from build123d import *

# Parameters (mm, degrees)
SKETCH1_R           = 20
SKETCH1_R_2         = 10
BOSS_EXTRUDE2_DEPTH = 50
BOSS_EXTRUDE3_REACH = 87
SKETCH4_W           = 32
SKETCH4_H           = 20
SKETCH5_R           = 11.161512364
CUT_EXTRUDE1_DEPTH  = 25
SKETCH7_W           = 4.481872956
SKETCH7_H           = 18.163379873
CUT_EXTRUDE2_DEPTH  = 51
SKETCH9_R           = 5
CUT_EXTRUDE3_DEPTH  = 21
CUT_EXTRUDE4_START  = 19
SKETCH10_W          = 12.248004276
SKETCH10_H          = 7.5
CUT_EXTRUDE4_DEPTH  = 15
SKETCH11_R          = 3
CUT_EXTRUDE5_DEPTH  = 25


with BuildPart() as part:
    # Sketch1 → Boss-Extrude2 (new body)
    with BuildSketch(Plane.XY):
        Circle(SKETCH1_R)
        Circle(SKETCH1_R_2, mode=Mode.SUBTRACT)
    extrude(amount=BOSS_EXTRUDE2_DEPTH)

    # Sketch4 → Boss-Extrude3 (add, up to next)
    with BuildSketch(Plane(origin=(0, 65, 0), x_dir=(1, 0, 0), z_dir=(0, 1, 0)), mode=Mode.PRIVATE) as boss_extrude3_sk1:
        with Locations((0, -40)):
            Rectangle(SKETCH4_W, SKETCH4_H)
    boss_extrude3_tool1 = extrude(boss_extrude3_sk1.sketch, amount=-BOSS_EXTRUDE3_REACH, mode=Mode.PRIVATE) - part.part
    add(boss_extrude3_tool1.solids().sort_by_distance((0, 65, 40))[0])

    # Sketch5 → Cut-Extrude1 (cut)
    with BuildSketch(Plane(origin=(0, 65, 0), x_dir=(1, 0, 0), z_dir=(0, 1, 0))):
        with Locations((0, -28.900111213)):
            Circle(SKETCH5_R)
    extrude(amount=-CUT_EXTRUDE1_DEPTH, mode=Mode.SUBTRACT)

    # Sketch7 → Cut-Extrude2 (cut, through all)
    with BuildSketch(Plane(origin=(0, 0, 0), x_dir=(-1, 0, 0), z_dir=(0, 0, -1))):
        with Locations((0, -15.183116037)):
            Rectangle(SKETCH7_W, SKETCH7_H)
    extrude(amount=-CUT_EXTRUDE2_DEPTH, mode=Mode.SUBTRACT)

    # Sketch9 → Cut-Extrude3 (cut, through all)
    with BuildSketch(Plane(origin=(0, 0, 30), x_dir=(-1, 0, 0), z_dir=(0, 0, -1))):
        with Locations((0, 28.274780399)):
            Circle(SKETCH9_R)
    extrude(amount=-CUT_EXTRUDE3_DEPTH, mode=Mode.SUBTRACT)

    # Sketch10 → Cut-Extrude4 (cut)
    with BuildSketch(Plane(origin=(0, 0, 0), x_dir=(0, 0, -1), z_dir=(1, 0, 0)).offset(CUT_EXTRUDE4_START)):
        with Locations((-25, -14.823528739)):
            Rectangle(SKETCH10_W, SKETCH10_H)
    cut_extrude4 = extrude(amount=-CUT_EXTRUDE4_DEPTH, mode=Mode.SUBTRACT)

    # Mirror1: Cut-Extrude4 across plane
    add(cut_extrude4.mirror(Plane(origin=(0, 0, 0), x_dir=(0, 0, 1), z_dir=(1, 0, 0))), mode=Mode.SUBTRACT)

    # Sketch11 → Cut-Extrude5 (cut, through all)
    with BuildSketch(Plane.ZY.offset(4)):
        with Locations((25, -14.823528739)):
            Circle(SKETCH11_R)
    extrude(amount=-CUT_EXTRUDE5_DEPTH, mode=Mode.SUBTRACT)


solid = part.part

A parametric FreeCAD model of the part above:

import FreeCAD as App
import Part
import Sketcher

V = App.Vector
Q = App.Units.Quantity

doc = App.newDocument("Part")
body = doc.addObject("PartDesign::Body", "Body")

sketch1 = body.newObject("Sketcher::SketchObject", "Sketch")
sketch1.AttachmentSupport = (doc.getObject("XY_Plane"), [""])
sketch1.MapMode = "FlatFace"
sketch1.addGeometry([
    Part.Circle(V(0, 0, 0), V(0, 0, 1), 20),
    Part.Circle(V(0, 0, 0), V(0, 0, 1), 10),
], False)
sketch1.addConstraint([
    Sketcher.Constraint("Coincident", 0, 3, -1, 1),
    Sketcher.Constraint("Coincident", 1, 3, -1, 1),
    Sketcher.Constraint("Diameter", 0, Q("40 mm")),
    Sketcher.Constraint("Diameter", 1, Q("20 mm")),
])
pad1 = body.newObject("PartDesign::Pad", "Pad")
pad1.Profile = sketch1
pad1.Length = 50

sketch2 = body.newObject("Sketcher::SketchObject", "Sketch001")
sketch2.AttachmentSupport = (doc.getObject("XZ_Plane"), [""])
sketch2.MapMode = "FlatFace"
sketch2.AttachmentOffset = App.Placement(V(0, 0, -65), App.Rotation())
sketch2.addGeometry([
    Part.LineSegment(V(-16, 30, 0), V(-16, 50, 0)),
    Part.LineSegment(V(-16, 50, 0), V(16, 50, 0)),
    Part.LineSegment(V(16, 50, 0), V(16, 30, 0)),
    Part.LineSegment(V(16, 30, 0), V(-16, 30, 0)),
], False)
sketch2.addConstraint([
    Sketcher.Constraint("Coincident", 0, 2, 1, 1),
    Sketcher.Constraint("Coincident", 1, 2, 2, 1),
    Sketcher.Constraint("Coincident", 2, 2, 3, 1),
    Sketcher.Constraint("Coincident", 3, 2, 0, 1),
    Sketcher.Constraint("Vertical", 0),
    Sketcher.Constraint("Horizontal", 1),
    Sketcher.Constraint("Vertical", 2),
    Sketcher.Constraint("Horizontal", 3),
    Sketcher.Constraint("DistanceX", 1, 1, 1, 2, Q("32 mm")),
    Sketcher.Constraint("DistanceY", 0, 1, 0, 2, Q("20 mm")),
    Sketcher.Constraint("DistanceX", 0, 2, -1, 1, Q("16 mm")),
    Sketcher.Constraint("DistanceY", -1, 1, 0, 2, Q("50 mm")),
])
pad2 = body.newObject("PartDesign::Pad", "Pad001")
pad2.Profile = sketch2
pad2.Type = "UpToFirst"

sketch3 = body.newObject("Sketcher::SketchObject", "Sketch002")
sketch3.AttachmentSupport = (doc.getObject("XZ_Plane"), [""])
sketch3.MapMode = "FlatFace"
sketch3.AttachmentOffset = App.Placement(V(0, 0, -65), App.Rotation())
sketch3.addGeometry(Part.Circle(V(0, 29, 0), V(0, 0, 1), 11), False)
sketch3.addConstraint([
    Sketcher.Constraint("PointOnObject", 0, 3, -2),
    Sketcher.Constraint("Diameter", 0, Q("22.323025 mm")),
    Sketcher.Constraint("DistanceY", -1, 1, 0, 3, Q("28.900111 mm")),
])
pocket1 = body.newObject("PartDesign::Pocket", "Pocket")
pocket1.Profile = sketch3
pocket1.Length = 25
pocket1.Reversed = True

sketch4 = body.newObject("Sketcher::SketchObject", "Sketch003")
sketch4.AttachmentSupport = (doc.getObject("XY_Plane"), [""])
sketch4.MapMode = "FlatFace"
sketch4.addGeometry([
    Part.LineSegment(V(2.2, -6.1, 0), V(2.2, -24.3, 0)),
    Part.LineSegment(V(2.2, -24.3, 0), V(-2.2, -24.3, 0)),
    Part.LineSegment(V(-2.2, -24.3, 0), V(-2.2, -6.1, 0)),
    Part.LineSegment(V(-2.2, -6.1, 0), V(2.2, -6.1, 0)),
], False)
sketch4.addConstraint([
    Sketcher.Constraint("Coincident", 0, 2, 1, 1),
    Sketcher.Constraint("Coincident", 1, 2, 2, 1),
    Sketcher.Constraint("Coincident", 2, 2, 3, 1),
    Sketcher.Constraint("Coincident", 3, 2, 0, 1),
    Sketcher.Constraint("Vertical", 0),
    Sketcher.Constraint("Horizontal", 1),
    Sketcher.Constraint("Vertical", 2),
    Sketcher.Constraint("Horizontal", 3),
    Sketcher.Constraint("DistanceY", 0, 2, 0, 1, Q("18.16338 mm")),
    Sketcher.Constraint("DistanceX", 1, 2, 1, 1, Q("4.481873 mm")),
    Sketcher.Constraint("DistanceX", -1, 1, 0, 2, Q("2.240936 mm")),
    Sketcher.Constraint("DistanceY", 0, 2, -1, 1, Q("24.264806 mm")),
])
pocket2 = body.newObject("PartDesign::Pocket", "Pocket001")
pocket2.Profile = sketch4
pocket2.Type = "ThroughAll"
pocket2.Reversed = True

sketch5 = body.newObject("Sketcher::SketchObject", "Sketch004")
sketch5.AttachmentSupport = (doc.getObject("XY_Plane"), [""])
sketch5.MapMode = "FlatFace"
sketch5.AttachmentOffset = App.Placement(V(0, 0, 30), App.Rotation())
sketch5.addGeometry(Part.Circle(V(0, 28, 0), V(0, 0, 1), 5), False)
sketch5.addConstraint([
    Sketcher.Constraint("PointOnObject", 0, 3, -2),
    Sketcher.Constraint("Diameter", 0, Q("10 mm")),
    Sketcher.Constraint("DistanceY", -1, 1, 0, 3, Q("28.27478 mm")),
])
pocket3 = body.newObject("PartDesign::Pocket", "Pocket002")
pocket3.Profile = sketch5
pocket3.Type = "ThroughAll"
pocket3.Reversed = True

sketch6 = body.newObject("Sketcher::SketchObject", "Sketch005")
sketch6.AttachmentSupport = (doc.getObject("YZ_Plane"), [""])
sketch6.MapMode = "FlatFace"
sketch6.AttachmentOffset = App.Placement(V(0, 0, 19), App.Rotation())
sketch6.addGeometry([
    Part.LineSegment(V(-11, 31, 0), V(-19, 31, 0)),
    Part.LineSegment(V(-19, 31, 0), V(-19, 19, 0)),
    Part.LineSegment(V(-19, 19, 0), V(-11, 19, 0)),
    Part.LineSegment(V(-11, 19, 0), V(-11, 31, 0)),
], False)
sketch6.addConstraint([
    Sketcher.Constraint("Coincident", 0, 2, 1, 1),
    Sketcher.Constraint("Coincident", 1, 2, 2, 1),
    Sketcher.Constraint("Coincident", 2, 2, 3, 1),
    Sketcher.Constraint("Coincident", 3, 2, 0, 1),
    Sketcher.Constraint("Horizontal", 0),
    Sketcher.Constraint("Vertical", 1),
    Sketcher.Constraint("Horizontal", 2),
    Sketcher.Constraint("Vertical", 3),
    Sketcher.Constraint("DistanceX", 0, 2, 0, 1, Q("7.5 mm")),
    Sketcher.Constraint("DistanceY", 1, 2, 1, 1, Q("12.248004 mm")),
    Sketcher.Constraint("DistanceX", 0, 2, -1, 1, Q("18.573529 mm")),
    Sketcher.Constraint("DistanceY", -1, 1, 0, 2, Q("31.124002 mm")),
])
pocket4 = body.newObject("PartDesign::Pocket", "Pocket003")
pocket4.Profile = sketch6
pocket4.Length = 15
doc.recompute()

mirrored = body.newObject("PartDesign::Mirrored", "Mirrored")
mirrored.Originals = [pocket4]
mirrored.MirrorPlane = (doc.getObject("YZ_Plane"), [""])
body.Tip = mirrored

sketch7 = body.newObject("Sketcher::SketchObject", "Sketch006")
sketch7.AttachmentSupport = (doc.getObject("YZ_Plane"), [""])
sketch7.MapMode = "FlatFace"
sketch7.AttachmentOffset = App.Placement(V(0, 0, -4), App.Rotation())
sketch7.addGeometry(Part.Circle(V(-14.8, 25, 0), V(0, 0, 1), 3), False)
sketch7.addConstraint([
    Sketcher.Constraint("Diameter", 0, Q("6 mm")),
    Sketcher.Constraint("DistanceY", -1, 1, 0, 3, Q("25 mm")),
    Sketcher.Constraint("DistanceX", 0, 3, -1, 1, Q("14.823529 mm")),
])
pocket5 = body.newObject("PartDesign::Pocket", "Pocket004")
pocket5.Profile = sketch7
pocket5.Type = "ThroughAll"
pocket5.Reversed = True

doc.recompute()
